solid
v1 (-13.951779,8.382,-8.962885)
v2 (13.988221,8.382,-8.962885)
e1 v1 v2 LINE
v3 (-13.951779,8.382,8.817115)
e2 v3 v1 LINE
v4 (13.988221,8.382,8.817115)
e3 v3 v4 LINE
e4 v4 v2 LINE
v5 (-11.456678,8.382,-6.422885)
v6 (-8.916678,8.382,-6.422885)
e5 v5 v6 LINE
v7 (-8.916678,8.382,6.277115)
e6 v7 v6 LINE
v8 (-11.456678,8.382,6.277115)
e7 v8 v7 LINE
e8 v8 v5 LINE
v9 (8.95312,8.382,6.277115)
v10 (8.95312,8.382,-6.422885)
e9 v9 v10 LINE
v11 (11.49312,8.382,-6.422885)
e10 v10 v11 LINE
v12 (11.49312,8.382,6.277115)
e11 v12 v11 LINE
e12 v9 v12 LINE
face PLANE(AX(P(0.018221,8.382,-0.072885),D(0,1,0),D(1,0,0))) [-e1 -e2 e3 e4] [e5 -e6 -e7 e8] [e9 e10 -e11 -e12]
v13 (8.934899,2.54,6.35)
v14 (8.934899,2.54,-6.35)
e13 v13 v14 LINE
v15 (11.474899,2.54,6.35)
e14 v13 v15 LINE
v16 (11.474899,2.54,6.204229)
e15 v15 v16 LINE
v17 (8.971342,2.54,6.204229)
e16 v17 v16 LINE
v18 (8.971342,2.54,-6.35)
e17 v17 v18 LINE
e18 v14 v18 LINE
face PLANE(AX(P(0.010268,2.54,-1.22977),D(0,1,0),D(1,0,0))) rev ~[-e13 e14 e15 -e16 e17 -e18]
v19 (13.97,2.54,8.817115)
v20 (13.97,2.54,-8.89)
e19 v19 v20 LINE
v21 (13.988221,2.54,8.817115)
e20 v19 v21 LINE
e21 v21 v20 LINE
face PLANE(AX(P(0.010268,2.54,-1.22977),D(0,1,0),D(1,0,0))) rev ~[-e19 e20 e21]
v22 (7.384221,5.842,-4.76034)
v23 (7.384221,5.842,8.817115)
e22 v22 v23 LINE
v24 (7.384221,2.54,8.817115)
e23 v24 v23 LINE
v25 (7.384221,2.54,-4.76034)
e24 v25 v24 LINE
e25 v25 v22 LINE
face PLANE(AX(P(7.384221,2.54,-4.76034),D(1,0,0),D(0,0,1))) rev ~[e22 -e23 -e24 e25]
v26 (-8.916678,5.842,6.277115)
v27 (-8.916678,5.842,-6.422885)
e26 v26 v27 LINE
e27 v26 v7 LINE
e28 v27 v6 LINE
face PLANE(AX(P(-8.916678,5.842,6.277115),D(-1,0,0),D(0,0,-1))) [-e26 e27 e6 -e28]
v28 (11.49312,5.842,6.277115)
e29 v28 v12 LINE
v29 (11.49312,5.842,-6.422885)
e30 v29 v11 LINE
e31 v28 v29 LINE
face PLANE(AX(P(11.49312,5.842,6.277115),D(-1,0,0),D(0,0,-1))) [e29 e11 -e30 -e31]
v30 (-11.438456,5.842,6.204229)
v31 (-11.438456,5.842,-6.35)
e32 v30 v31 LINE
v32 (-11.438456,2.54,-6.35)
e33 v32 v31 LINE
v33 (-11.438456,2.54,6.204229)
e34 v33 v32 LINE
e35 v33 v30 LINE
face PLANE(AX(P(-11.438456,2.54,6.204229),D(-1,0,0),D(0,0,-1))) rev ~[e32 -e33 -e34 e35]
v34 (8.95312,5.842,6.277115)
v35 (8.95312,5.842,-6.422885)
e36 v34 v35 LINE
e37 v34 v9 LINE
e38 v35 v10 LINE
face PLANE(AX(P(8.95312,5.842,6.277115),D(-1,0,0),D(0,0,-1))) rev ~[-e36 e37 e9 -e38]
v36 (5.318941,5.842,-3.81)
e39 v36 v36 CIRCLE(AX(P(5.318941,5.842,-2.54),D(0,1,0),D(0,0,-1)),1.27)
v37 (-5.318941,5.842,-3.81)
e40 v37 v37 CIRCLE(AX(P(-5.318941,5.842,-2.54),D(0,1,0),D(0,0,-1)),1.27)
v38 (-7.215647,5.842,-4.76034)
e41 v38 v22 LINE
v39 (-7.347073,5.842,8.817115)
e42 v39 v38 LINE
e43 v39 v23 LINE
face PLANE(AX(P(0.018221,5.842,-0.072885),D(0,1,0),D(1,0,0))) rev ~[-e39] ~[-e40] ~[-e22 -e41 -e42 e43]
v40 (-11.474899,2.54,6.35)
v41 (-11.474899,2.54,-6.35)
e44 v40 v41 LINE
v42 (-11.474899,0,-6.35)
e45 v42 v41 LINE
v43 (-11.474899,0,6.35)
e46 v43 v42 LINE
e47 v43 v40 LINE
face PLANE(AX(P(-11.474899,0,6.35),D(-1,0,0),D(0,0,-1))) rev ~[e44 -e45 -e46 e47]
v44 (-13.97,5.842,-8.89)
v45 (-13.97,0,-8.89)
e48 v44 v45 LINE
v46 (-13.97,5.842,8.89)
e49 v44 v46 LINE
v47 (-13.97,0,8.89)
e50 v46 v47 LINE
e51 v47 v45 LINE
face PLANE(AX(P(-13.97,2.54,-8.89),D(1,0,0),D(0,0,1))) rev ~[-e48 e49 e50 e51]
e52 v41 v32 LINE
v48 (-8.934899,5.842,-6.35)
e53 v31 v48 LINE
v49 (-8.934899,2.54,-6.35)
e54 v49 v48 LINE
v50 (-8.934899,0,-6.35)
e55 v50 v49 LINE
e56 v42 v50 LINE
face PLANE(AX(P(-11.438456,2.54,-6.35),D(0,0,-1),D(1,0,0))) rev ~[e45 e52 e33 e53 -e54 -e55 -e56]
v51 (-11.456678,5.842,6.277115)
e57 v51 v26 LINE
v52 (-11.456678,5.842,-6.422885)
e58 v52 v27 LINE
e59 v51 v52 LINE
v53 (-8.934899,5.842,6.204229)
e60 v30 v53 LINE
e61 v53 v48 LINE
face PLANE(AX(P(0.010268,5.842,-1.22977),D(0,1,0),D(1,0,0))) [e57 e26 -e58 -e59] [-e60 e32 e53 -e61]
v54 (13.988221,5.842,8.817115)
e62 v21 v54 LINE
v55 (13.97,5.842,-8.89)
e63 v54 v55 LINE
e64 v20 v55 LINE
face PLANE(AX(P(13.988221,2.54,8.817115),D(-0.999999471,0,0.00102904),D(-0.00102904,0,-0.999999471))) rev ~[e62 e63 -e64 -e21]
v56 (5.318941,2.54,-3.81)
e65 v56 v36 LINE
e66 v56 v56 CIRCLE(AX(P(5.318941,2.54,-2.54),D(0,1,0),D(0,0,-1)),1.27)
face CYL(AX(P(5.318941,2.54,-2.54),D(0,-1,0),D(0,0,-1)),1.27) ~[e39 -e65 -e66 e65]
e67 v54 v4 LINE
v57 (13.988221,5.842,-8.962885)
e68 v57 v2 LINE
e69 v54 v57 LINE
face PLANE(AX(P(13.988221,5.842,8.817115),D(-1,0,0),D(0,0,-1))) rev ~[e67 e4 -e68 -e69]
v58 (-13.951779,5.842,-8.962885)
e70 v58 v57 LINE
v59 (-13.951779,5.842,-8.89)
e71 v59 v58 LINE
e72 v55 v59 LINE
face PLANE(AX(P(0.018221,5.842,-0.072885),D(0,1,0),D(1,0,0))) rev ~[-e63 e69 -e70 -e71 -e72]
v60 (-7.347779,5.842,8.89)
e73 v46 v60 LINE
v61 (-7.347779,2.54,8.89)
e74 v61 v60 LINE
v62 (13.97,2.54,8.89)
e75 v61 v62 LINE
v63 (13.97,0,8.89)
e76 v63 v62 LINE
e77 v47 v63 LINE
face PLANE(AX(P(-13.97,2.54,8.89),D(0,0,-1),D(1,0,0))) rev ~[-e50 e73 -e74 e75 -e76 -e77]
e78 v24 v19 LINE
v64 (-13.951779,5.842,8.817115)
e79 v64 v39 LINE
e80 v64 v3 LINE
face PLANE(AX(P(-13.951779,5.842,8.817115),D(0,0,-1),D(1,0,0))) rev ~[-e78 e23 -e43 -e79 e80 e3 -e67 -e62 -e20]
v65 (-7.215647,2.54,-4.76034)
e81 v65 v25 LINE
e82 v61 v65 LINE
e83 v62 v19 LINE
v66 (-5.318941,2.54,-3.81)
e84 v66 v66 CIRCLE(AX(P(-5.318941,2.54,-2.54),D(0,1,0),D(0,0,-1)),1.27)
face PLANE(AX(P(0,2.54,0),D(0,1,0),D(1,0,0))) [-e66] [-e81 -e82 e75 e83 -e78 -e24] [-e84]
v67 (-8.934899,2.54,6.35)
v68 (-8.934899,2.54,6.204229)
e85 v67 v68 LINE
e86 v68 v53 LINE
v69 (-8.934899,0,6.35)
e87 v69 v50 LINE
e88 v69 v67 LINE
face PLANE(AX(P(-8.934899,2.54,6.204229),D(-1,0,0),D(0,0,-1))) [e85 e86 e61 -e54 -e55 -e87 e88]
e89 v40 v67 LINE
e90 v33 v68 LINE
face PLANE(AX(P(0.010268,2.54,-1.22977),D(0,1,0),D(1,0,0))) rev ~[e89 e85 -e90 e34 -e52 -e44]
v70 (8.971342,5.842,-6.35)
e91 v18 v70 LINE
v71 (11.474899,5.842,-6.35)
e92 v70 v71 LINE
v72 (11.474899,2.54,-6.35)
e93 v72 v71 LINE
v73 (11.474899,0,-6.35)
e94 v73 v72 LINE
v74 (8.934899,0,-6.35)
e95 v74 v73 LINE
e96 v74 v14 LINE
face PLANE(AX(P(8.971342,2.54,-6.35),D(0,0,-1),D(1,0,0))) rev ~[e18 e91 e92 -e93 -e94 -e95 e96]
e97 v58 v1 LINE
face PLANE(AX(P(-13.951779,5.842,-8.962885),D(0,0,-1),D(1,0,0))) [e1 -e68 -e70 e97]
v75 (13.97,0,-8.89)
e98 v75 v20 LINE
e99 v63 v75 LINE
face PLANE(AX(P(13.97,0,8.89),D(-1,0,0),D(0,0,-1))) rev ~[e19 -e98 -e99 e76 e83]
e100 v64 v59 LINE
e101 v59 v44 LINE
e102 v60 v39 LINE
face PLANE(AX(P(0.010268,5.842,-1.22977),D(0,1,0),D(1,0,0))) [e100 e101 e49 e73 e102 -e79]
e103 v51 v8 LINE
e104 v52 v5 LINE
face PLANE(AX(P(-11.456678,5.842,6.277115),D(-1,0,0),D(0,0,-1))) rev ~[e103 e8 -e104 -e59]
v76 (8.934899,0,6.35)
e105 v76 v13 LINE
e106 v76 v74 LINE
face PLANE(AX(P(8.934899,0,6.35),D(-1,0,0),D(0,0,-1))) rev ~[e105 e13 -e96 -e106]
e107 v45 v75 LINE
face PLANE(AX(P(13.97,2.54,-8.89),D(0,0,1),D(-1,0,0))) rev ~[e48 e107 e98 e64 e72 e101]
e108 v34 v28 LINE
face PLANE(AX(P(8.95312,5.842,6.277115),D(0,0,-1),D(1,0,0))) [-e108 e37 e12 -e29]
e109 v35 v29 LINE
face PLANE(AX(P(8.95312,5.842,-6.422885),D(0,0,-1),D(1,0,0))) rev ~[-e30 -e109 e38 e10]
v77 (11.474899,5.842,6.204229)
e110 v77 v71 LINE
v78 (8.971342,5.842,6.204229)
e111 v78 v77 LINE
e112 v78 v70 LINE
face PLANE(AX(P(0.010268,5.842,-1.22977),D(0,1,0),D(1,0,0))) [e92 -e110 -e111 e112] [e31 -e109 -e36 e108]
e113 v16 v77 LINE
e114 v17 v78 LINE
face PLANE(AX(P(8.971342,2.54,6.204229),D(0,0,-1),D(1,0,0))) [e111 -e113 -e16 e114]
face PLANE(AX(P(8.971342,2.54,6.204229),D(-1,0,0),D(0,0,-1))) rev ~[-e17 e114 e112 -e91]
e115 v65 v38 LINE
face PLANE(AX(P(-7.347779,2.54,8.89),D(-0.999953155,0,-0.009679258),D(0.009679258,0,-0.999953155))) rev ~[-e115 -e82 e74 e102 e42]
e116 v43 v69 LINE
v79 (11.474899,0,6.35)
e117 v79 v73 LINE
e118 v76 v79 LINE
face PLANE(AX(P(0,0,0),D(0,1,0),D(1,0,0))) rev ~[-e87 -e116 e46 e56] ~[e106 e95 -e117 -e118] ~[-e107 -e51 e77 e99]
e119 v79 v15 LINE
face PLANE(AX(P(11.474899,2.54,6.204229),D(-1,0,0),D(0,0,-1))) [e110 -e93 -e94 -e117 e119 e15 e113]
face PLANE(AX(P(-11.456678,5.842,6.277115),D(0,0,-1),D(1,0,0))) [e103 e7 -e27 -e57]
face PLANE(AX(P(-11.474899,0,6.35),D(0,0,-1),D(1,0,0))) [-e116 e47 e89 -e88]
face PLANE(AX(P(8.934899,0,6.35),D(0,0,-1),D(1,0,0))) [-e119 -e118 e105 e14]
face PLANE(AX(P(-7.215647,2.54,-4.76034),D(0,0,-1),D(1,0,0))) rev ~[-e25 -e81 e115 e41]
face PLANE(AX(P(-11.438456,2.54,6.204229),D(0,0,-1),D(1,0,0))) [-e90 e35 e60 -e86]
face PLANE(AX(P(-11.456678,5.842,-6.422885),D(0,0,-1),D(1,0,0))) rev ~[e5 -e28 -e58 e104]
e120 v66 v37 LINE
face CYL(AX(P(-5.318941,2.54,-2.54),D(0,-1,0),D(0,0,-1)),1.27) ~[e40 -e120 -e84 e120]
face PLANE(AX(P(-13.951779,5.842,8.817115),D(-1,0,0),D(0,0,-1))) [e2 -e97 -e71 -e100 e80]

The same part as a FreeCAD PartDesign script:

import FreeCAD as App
import Part
import Sketcher
Q = App.Units.Quantity


def add_polygon(sketch, points):
    """Adds a closed chain of lines whose ends are joined by coincident constraints."""
    first, n = sketch.GeometryCount, len(points)
    for a, b in zip(points, points[1:] + points[:1]):
        sketch.addGeometry(Part.LineSegment(App.Vector(*a, 0), App.Vector(*b, 0)), False)
    for i in range(n):
        sketch.addConstraint(Sketcher.Constraint("Coincident", first + i, 2, first + (i + 1) % n, 1))

doc = App.newDocument("Part")
body = doc.addObject("PartDesign::Body", "Body")

# Sketch on XZ plane
sketch1 = body.newObject("Sketcher::SketchObject", "Sketch")
sketch1.AttachmentSupport = (doc.getObject("XZ_Plane"), [""])
sketch1.MapMode = "FlatFace"
add_polygon(sketch1, [(-14, -8.9), (-14, 8.9), (14, 8.9), (14, -8.9)])  # lines 0-3
add_polygon(sketch1, [(-8.9, 6.3), (-11.5, 6.3), (-11.5, -6.3), (-8.9, -6.3)])  # lines 4-7
add_polygon(sketch1, [(11.5, 6.3), (8.9, 6.3), (8.9, -6.3), (11.5, -6.3)])  # lines 8-11
sketch1.addConstraint([
    Sketcher.Constraint("Vertical", 0),
    Sketcher.Constraint("Horizontal", 1),
    Sketcher.Constraint("Vertical", 2),
    Sketcher.Constraint("Horizontal", 3),
    Sketcher.Constraint("Horizontal", 4),
    Sketcher.Constraint("Vertical", 5),
    Sketcher.Constraint("Horizontal", 6),
    Sketcher.Constraint("Vertical", 7),
    Sketcher.Constraint("Horizontal", 8),
    Sketcher.Constraint("Vertical", 9),
    Sketcher.Constraint("Horizontal", 10),
    Sketcher.Constraint("Vertical", 11),
    Sketcher.Constraint("Symmetric", 0, 2, 2, 2, -1, 1),
    Sketcher.Constraint("Symmetric", 6, 2, 8, 2, -1, 1),
    Sketcher.Constraint("Symmetric", 4, 2, 10, 2, -1, 1),
    Sketcher.Constraint("Horizontal", 7, 2, 8, 2),
    Sketcher.Constraint("DistanceX", 1, 1, 1, 2, Q("1.1 in")),
    Sketcher.Constraint("DistanceX", 4, 2, 4, 1, Q("0.1 in")),
    Sketcher.Constraint("DistanceY", 0, 1, 0, 2, Q("0.7 in")),
    Sketcher.Constraint("DistanceY", 5, 2, 5, 1, Q("0.5 in")),
    Sketcher.Constraint("DistanceX", 4, 2, -1, 1, Q("11.474899 mm")),
])
pad1 = body.newObject("PartDesign::Pad", "Pad")
pad1.Profile = sketch1
pad1.Length = Q("0.1 in")
pad1.Reversed = True

# Sketch on XZ plane
sketch2 = body.newObject("Sketcher::SketchObject", "Sketch001")
sketch2.AttachmentSupport = (doc.getObject("XZ_Plane"), [""])
sketch2.MapMode = "FlatFace"
sketch2.AttachmentOffset = App.Placement(App.Vector(0, 0, -0.1 * 25.4), App.Rotation())
sketch2.addGeometry([
    Part.Circle(App.Vector(-5.3, -2.5, 0), App.Vector(0, 0, 1), 1.3),
    Part.Circle(App.Vector(5.3, -2.5, 0), App.Vector(0, 0, 1), 1.3),
], False)
sketch2.addConstraint([
    Sketcher.Constraint("Equal", 0, 1),
    Sketcher.Constraint("Symmetric", 0, 3, 1, 3, -2),
    Sketcher.Constraint("Diameter", 0, Q("0.1 in")),
    Sketcher.Constraint("DistanceY", 0, 3, -1, 1, Q("0.1 in")),
    Sketcher.Constraint("DistanceX", 0, 3, -1, 1, Q("5.318941 mm")),
])
pad2 = body.newObject("PartDesign::Pad", "Pad001")
pad2.Profile = sketch2
pad2.Length = Q("0.13 in")
pad2.Reversed = True

# Sketch on XZ plane
sketch3 = body.newObject("Sketcher::SketchObject", "Sketch002")
sketch3.AttachmentSupport = (doc.getObject("XZ_Plane"), [""])
sketch3.MapMode = "FlatFace"
sketch3.AttachmentOffset = App.Placement(App.Vector(0, 0, -0.1 * 25.4), App.Rotation())
add_polygon(sketch3, [(-7.2, -4.8), (7.4, -4.8), (7.4, 8.8), (14, 8.8), (14, -8.9), (-14, -8.9), (-14, 8.9), (-7.3, 8.9)])  # lines 0-7
add_polygon(sketch3, [(-8.9, 6.2), (-11.4, 6.2), (-11.4, -6.3), (-8.9, -6.3)])  # lines 8-11
add_polygon(sketch3, [(11.5, 6.2), (9, 6.2), (9, -6.3), (11.5, -6.3)])  # lines 12-15
sketch3.addConstraint([
    Sketcher.Constraint("Horizontal", 0),
    Sketcher.Constraint("Vertical", 1),
    Sketcher.Constraint("Horizontal", 2),
    Sketcher.Constraint("Horizontal", 4),
    Sketcher.Constraint("Vertical", 5),
    Sketcher.Constraint("Horizontal", 6),
    Sketcher.Constraint("Horizontal", 8),
    Sketcher.Constraint("Vertical", 9),
    Sketcher.Constraint("Horizontal", 10),
    Sketcher.Constraint("Vertical", 11),
    Sketcher.Constraint("Horizontal", 12),
    Sketcher.Constraint("Vertical", 13),
    Sketcher.Constraint("Horizontal", 14),
    Sketcher.Constraint("Vertical", 15),
    Sketcher.Constraint("Symmetric", 3, 2, 5, 2, -1, 1),
    Sketcher.Constraint("Horizontal", 11, 2, 12, 2),
    Sketcher.Constraint("Horizontal", 10, 2, 13, 2),
    Sketcher.Constraint("Equal", 10, 12),
    Sketcher.Constraint("DistanceX", 4, 2, 4, 1, Q("1.1 in")),
    Sketcher.Constraint("DistanceY", 5, 1, 5, 2, Q("0.7 in")),
    Sketcher.Constraint("DistanceX", 2, 1, 2, 2, Q("0.26 in")),
    Sketcher.Constraint("DistanceY", 4, 2, 9, 2, Q("0.1 in")),
    Sketcher.Constraint("DistanceX", 6, 2, 1, 2, Q("0.58 in")),
    Sketcher.Constraint("DistanceX", 0, 1, 0, 2, Q("14.599869 mm")),
    Sketcher.Constraint("DistanceX", 6, 1, 6, 2, Q("6.622221 mm")),
    Sketcher.Constraint("DistanceY", 9, 2, 9, 1, Q("12.554229 mm")),
    Sketcher.Constraint("DistanceX", 10, 2, -1, 1, Q("8.934899 mm")),
    Sketcher.Constraint("DistanceX", -1, 1, 14, 2, Q("11.474899 mm")),
    Sketcher.Constraint("Distance", 7, Q("13.650979 mm")),
    Sketcher.Constraint("DistanceX", 8, 2, 8, 1, Q("2.503557 mm")),
    Sketcher.Constraint("DistanceY", 1, 1, 1, 2, Q("13.577455 mm")),
])
pad3 = body.newObject("PartDesign::Pad", "Pad002")
pad3.Profile = sketch3
pad3.Length = Q("0.13 in")
pad3.Reversed = True

# Sketch on XZ plane
sketch4 = body.newObject("Sketcher::SketchObject", "Sketch003")
sketch4.AttachmentSupport = (doc.getObject("XZ_Plane"), [""])
sketch4.MapMode = "FlatFace"
sketch4.AttachmentOffset = App.Placement(App.Vector(0, 0, -0.23 * 25.4), App.Rotation())
add_polygon(sketch4, [(-14, -9), (-14, 8.8), (14, 8.8), (14, -9)])  # lines 0-3
add_polygon(sketch4, [(-8.9, 6.3), (-11.5, 6.3), (-11.5, -6.4), (-8.9, -6.4)])  # lines 4-7
add_polygon(sketch4, [(11.5, 6.3), (9, 6.3), (9, -6.4), (11.5, -6.4)])  # lines 8-11
sketch4.addConstraint([
    Sketcher.Constraint("Vertical", 0),
    Sketcher.Constraint("Horizontal", 1),
    Sketcher.Constraint("Vertical", 2),
    Sketcher.Constraint("Horizontal", 3),
    Sketcher.Constraint("Horizontal", 4),
    Sketcher.Constraint("Vertical", 5),
    Sketcher.Constraint("Horizontal", 6),
    Sketcher.Constraint("Vertical", 7),
    Sketcher.Constraint("Horizontal", 8),
    Sketcher.Constraint("Vertical", 9),
    Sketcher.Constraint("Horizontal", 10),
    Sketcher.Constraint("Vertical", 11),
    Sketcher.Constraint("Horizontal", 7, 2, 8, 2),
    Sketcher.Constraint("Horizontal", 6, 2, 9, 2),
    Sketcher.Constraint("Equal", 6, 8),
    Sketcher.Constraint("DistanceX", 1, 1, 1, 2, Q("1.1 in")),
    Sketcher.Constraint("DistanceX", 4, 2, 4, 1, Q("0.1 in")),
    Sketcher.Constraint("DistanceY", 0, 1, 0, 2, Q("0.7 in")),
    Sketcher.Constraint("DistanceY", 5, 2, 5, 1, Q("0.5 in")),
    Sketcher.Constraint("DistanceY", 4, 2, 0, 2, Q("0.1 in")),
    Sketcher.Constraint("DistanceX", 0, 2, 4, 2, Q("2.495101 mm")),
    Sketcher.Constraint("DistanceX", 8, 2, 1, 2, Q("5.035101 mm")),
    Sketcher.Constraint("DistanceX", 0, 2, -1, 1, Q("13.951779 mm")),
    Sketcher.Constraint("DistanceY", -1, 1, 0, 2, Q("8.817115 mm")),
])
pad4 = body.newObject("PartDesign::Pad", "Pad003")
pad4.Profile = sketch4
pad4.Length = Q("0.1 in")
pad4.Reversed = True

doc.recompute()
